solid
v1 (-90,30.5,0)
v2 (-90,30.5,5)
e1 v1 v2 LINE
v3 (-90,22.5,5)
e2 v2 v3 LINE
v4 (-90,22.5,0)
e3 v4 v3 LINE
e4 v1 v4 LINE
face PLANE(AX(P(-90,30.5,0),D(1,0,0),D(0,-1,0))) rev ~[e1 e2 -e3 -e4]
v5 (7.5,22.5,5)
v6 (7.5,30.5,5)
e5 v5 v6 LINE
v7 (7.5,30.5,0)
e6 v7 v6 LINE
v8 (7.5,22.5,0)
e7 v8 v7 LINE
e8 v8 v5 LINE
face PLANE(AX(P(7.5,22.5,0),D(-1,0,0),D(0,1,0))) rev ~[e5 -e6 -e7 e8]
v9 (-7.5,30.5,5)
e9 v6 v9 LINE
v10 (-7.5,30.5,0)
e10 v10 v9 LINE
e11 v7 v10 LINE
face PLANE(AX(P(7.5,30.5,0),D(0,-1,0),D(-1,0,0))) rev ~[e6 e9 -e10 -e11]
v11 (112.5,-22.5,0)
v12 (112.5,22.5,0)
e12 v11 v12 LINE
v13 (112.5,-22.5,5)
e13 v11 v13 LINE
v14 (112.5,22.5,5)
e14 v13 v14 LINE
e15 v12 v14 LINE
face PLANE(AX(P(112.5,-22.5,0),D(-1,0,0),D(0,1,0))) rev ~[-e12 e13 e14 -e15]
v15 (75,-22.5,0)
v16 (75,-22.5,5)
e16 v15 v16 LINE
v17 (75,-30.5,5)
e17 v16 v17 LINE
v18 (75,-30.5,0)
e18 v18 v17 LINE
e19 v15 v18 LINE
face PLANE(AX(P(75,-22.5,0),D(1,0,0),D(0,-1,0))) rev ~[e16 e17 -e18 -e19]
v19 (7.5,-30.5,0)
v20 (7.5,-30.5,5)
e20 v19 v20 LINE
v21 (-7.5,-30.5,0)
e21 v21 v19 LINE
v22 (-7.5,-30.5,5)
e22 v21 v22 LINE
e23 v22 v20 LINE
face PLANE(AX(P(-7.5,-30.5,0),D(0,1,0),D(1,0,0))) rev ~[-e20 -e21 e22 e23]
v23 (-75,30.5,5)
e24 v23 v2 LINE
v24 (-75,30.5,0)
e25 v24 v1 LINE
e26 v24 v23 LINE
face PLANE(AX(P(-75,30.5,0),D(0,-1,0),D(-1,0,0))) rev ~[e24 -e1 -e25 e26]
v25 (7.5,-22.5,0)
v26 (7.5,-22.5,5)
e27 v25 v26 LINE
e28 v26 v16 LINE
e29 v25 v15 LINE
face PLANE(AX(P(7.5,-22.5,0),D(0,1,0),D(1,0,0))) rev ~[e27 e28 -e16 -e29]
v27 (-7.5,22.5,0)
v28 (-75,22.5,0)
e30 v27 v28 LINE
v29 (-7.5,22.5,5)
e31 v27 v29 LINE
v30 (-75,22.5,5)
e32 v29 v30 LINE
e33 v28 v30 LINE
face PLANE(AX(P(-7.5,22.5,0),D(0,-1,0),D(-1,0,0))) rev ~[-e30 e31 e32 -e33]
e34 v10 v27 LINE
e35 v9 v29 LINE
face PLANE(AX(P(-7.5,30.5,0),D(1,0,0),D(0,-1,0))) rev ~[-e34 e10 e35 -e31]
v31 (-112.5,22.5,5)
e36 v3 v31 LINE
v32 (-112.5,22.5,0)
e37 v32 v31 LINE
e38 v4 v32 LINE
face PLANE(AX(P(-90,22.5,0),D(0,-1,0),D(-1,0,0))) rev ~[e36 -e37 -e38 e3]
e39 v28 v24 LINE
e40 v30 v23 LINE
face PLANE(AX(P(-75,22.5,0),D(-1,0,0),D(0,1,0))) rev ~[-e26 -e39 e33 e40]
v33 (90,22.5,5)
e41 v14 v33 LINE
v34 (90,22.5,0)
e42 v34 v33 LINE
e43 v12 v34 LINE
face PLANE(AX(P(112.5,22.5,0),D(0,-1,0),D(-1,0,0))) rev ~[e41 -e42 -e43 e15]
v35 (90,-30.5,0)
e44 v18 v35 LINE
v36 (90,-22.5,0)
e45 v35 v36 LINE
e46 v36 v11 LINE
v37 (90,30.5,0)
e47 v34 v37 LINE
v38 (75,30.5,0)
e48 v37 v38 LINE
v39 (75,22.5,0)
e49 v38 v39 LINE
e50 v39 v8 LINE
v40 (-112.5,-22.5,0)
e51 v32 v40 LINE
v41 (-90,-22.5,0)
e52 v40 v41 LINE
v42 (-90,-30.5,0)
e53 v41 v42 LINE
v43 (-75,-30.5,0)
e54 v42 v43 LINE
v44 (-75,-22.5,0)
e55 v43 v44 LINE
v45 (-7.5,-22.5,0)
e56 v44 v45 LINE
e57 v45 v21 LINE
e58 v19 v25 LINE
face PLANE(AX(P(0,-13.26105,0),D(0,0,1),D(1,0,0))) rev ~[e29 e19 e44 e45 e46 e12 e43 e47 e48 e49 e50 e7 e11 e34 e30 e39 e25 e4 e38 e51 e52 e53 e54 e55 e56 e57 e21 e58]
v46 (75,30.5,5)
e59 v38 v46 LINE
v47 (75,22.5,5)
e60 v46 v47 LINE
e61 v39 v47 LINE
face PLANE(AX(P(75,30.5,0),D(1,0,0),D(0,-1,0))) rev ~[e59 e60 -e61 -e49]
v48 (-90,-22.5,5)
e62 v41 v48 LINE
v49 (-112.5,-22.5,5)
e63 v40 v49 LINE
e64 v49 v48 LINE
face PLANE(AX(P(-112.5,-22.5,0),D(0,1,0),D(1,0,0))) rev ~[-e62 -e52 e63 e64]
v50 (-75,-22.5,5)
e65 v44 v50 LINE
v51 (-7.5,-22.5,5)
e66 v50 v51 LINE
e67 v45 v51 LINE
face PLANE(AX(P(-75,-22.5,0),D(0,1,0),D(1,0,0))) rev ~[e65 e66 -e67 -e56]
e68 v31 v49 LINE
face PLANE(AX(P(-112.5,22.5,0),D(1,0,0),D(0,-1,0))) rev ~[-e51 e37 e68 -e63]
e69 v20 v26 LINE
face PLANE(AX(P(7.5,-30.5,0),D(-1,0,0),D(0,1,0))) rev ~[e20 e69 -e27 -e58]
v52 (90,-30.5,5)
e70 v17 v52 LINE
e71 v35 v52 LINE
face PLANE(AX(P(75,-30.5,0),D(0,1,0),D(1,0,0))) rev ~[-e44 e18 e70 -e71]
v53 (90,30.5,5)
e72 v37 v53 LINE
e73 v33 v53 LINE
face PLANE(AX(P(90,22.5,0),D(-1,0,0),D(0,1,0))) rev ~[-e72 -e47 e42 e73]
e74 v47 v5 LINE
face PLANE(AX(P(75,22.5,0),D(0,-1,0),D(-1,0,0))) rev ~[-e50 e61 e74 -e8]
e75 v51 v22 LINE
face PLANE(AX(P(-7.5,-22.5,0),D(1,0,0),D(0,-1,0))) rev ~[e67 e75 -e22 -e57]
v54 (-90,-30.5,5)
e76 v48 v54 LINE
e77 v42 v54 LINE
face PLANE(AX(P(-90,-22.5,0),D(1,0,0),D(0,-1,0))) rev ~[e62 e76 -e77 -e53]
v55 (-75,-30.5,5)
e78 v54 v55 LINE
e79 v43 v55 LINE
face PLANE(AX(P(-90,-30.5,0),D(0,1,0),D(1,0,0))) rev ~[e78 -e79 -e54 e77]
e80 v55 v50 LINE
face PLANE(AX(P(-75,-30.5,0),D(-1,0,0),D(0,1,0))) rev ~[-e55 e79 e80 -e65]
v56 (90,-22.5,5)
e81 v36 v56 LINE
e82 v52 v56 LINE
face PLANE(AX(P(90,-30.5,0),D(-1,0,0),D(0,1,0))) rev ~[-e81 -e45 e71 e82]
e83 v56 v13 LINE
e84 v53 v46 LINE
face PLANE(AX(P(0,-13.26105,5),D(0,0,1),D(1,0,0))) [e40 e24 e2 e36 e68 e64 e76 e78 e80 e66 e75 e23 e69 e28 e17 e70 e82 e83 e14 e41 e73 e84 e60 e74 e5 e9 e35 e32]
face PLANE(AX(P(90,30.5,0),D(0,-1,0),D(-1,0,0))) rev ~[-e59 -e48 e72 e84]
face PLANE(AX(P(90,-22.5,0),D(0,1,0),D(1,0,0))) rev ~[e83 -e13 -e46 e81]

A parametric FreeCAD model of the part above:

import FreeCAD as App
import Part
import Sketcher

V = App.Vector


def add_polygon(sketch, points):
    """Adds a closed chain of lines whose ends are joined by coincident constraints."""
    first, n = sketch.GeometryCount, len(points)
    for a, b in zip(points, points[1:] + points[:1]):
        sketch.addGeometry(Part.LineSegment(App.Vector(*a, 0), App.Vector(*b, 0)), False)
    for i in range(n):
        sketch.addConstraint(Sketcher.Constraint("Coincident", first + i, 2, first + (i + 1) % n, 1))

doc = App.newDocument("Part")
body = doc.addObject("PartDesign::Body", "Body")

# Sketch on XY plane
sketch1 = body.newObject("Sketcher::SketchObject", "Sketch")
sketch1.AttachmentSupport = (doc.getObject("XY_Plane"), [""])
sketch1.MapMode = "FlatFace"
add_polygon(sketch1, [(-112.5, -22.5), (-90, -22.5), (-90, -30.5), (-75, -30.5), (-75, -22.5), (-7.5, -22.5), (-7.5, -30.5), (7.5, -30.5), (7.5, -22.5), (75, -22.5), (75, -30.5), (90, -30.5), (90, -22.5), (112.5, -22.5), (112.5, 22.5), (90, 22.5), (90, 30.5), (75, 30.5), (75, 22.5), (7.5, 22.5), (7.5, 30.5), (-7.5, 30.5), (-7.5, 22.5), (-75, 22.5), (-75, 30.5), (-90, 30.5), (-90, 22.5), (-112.5, 22.5)])  # lines 0-27
sketch1.addConstraint([
    Sketcher.Constraint("Horizontal", 0),
    Sketcher.Constraint("Vertical", 1),
    Sketcher.Constraint("Horizontal", 2),
    Sketcher.Constraint("Vertical", 3),
    Sketcher.Constraint("Horizontal", 4),
    Sketcher.Constraint("Vertical", 5),
    Sketcher.Constraint("Horizontal", 6),
    Sketcher.Constraint("Vertical", 7),
    Sketcher.Constraint("Horizontal", 8),
    Sketcher.Constraint("Vertical", 9),
    Sketcher.Constraint("Horizontal", 10),
    Sketcher.Constraint("Vertical", 11),
    Sketcher.Constraint("Horizontal", 12),
    Sketcher.Constraint("Vertical", 13),
    Sketcher.Constraint("Horizontal", 14),
    Sketcher.Constraint("Vertical", 15),
    Sketcher.Constraint("Horizontal", 16),
    Sketcher.Constraint("Vertical", 17),
    Sketcher.Constraint("Horizontal", 18),
    Sketcher.Constraint("Vertical", 19),
    Sketcher.Constraint("Horizontal", 20),
    Sketcher.Constraint("Vertical", 21),
    Sketcher.Constraint("Horizontal", 22),
    Sketcher.Constraint("Vertical", 23),
    Sketcher.Constraint("Horizontal", 24),
    Sketcher.Constraint("Vertical", 25),
    Sketcher.Constraint("Horizontal", 26),
    Sketcher.Constraint("Vertical", 27),
    Sketcher.Constraint("Symmetric", 0, 2, 14, 2, -1, 1),
    Sketcher.Constraint("Symmetric", 2, 2, 16, 2, -1, 1),
    Sketcher.Constraint("Symmetric", 4, 2, 18, 2, -1, 1),
    Sketcher.Constraint("Symmetric", 6, 2, 20, 2, -1, 1),
    Sketcher.Constraint("Symmetric", 8, 2, 22, 2, -1, 1),
    Sketcher.Constraint("Symmetric", 10, 2, 24, 2, -1, 1),
    Sketcher.Constraint("Symmetric", 12, 2, 26, 2, -1, 1),
    Sketcher.Constraint("Symmetric", 4, 2, 7, 2, -2),
    Sketcher.Constraint("Symmetric", 2, 2, 9, 2, -2),
    Sketcher.Constraint("Symmetric", 0, 2, 11, 2, -2),
    Sketcher.Constraint("Horizontal", 0, 2, 3, 2),
    Sketcher.Constraint("Horizontal", 2, 2, 5, 2),
    Sketcher.Constraint("Equal", 2, 6),
    Sketcher.Constraint("DistanceX", 2, 1, 2, 2, 15.0),
    Sketcher.Constraint("DistanceY", 1, 2, 1, 1, 8.0),
    Sketcher.Constraint("DistanceY", 13, 1, 13, 2, 45.0),
    Sketcher.Constraint("DistanceX", 0, 1, 0, 2, 22.5),
    Sketcher.Constraint("DistanceX", 4, 1, 4, 2, 67.5),
])
pad1 = body.newObject("PartDesign::Pad", "Pad")
pad1.Profile = sketch1
pad1.Length = 5

doc.recompute()
